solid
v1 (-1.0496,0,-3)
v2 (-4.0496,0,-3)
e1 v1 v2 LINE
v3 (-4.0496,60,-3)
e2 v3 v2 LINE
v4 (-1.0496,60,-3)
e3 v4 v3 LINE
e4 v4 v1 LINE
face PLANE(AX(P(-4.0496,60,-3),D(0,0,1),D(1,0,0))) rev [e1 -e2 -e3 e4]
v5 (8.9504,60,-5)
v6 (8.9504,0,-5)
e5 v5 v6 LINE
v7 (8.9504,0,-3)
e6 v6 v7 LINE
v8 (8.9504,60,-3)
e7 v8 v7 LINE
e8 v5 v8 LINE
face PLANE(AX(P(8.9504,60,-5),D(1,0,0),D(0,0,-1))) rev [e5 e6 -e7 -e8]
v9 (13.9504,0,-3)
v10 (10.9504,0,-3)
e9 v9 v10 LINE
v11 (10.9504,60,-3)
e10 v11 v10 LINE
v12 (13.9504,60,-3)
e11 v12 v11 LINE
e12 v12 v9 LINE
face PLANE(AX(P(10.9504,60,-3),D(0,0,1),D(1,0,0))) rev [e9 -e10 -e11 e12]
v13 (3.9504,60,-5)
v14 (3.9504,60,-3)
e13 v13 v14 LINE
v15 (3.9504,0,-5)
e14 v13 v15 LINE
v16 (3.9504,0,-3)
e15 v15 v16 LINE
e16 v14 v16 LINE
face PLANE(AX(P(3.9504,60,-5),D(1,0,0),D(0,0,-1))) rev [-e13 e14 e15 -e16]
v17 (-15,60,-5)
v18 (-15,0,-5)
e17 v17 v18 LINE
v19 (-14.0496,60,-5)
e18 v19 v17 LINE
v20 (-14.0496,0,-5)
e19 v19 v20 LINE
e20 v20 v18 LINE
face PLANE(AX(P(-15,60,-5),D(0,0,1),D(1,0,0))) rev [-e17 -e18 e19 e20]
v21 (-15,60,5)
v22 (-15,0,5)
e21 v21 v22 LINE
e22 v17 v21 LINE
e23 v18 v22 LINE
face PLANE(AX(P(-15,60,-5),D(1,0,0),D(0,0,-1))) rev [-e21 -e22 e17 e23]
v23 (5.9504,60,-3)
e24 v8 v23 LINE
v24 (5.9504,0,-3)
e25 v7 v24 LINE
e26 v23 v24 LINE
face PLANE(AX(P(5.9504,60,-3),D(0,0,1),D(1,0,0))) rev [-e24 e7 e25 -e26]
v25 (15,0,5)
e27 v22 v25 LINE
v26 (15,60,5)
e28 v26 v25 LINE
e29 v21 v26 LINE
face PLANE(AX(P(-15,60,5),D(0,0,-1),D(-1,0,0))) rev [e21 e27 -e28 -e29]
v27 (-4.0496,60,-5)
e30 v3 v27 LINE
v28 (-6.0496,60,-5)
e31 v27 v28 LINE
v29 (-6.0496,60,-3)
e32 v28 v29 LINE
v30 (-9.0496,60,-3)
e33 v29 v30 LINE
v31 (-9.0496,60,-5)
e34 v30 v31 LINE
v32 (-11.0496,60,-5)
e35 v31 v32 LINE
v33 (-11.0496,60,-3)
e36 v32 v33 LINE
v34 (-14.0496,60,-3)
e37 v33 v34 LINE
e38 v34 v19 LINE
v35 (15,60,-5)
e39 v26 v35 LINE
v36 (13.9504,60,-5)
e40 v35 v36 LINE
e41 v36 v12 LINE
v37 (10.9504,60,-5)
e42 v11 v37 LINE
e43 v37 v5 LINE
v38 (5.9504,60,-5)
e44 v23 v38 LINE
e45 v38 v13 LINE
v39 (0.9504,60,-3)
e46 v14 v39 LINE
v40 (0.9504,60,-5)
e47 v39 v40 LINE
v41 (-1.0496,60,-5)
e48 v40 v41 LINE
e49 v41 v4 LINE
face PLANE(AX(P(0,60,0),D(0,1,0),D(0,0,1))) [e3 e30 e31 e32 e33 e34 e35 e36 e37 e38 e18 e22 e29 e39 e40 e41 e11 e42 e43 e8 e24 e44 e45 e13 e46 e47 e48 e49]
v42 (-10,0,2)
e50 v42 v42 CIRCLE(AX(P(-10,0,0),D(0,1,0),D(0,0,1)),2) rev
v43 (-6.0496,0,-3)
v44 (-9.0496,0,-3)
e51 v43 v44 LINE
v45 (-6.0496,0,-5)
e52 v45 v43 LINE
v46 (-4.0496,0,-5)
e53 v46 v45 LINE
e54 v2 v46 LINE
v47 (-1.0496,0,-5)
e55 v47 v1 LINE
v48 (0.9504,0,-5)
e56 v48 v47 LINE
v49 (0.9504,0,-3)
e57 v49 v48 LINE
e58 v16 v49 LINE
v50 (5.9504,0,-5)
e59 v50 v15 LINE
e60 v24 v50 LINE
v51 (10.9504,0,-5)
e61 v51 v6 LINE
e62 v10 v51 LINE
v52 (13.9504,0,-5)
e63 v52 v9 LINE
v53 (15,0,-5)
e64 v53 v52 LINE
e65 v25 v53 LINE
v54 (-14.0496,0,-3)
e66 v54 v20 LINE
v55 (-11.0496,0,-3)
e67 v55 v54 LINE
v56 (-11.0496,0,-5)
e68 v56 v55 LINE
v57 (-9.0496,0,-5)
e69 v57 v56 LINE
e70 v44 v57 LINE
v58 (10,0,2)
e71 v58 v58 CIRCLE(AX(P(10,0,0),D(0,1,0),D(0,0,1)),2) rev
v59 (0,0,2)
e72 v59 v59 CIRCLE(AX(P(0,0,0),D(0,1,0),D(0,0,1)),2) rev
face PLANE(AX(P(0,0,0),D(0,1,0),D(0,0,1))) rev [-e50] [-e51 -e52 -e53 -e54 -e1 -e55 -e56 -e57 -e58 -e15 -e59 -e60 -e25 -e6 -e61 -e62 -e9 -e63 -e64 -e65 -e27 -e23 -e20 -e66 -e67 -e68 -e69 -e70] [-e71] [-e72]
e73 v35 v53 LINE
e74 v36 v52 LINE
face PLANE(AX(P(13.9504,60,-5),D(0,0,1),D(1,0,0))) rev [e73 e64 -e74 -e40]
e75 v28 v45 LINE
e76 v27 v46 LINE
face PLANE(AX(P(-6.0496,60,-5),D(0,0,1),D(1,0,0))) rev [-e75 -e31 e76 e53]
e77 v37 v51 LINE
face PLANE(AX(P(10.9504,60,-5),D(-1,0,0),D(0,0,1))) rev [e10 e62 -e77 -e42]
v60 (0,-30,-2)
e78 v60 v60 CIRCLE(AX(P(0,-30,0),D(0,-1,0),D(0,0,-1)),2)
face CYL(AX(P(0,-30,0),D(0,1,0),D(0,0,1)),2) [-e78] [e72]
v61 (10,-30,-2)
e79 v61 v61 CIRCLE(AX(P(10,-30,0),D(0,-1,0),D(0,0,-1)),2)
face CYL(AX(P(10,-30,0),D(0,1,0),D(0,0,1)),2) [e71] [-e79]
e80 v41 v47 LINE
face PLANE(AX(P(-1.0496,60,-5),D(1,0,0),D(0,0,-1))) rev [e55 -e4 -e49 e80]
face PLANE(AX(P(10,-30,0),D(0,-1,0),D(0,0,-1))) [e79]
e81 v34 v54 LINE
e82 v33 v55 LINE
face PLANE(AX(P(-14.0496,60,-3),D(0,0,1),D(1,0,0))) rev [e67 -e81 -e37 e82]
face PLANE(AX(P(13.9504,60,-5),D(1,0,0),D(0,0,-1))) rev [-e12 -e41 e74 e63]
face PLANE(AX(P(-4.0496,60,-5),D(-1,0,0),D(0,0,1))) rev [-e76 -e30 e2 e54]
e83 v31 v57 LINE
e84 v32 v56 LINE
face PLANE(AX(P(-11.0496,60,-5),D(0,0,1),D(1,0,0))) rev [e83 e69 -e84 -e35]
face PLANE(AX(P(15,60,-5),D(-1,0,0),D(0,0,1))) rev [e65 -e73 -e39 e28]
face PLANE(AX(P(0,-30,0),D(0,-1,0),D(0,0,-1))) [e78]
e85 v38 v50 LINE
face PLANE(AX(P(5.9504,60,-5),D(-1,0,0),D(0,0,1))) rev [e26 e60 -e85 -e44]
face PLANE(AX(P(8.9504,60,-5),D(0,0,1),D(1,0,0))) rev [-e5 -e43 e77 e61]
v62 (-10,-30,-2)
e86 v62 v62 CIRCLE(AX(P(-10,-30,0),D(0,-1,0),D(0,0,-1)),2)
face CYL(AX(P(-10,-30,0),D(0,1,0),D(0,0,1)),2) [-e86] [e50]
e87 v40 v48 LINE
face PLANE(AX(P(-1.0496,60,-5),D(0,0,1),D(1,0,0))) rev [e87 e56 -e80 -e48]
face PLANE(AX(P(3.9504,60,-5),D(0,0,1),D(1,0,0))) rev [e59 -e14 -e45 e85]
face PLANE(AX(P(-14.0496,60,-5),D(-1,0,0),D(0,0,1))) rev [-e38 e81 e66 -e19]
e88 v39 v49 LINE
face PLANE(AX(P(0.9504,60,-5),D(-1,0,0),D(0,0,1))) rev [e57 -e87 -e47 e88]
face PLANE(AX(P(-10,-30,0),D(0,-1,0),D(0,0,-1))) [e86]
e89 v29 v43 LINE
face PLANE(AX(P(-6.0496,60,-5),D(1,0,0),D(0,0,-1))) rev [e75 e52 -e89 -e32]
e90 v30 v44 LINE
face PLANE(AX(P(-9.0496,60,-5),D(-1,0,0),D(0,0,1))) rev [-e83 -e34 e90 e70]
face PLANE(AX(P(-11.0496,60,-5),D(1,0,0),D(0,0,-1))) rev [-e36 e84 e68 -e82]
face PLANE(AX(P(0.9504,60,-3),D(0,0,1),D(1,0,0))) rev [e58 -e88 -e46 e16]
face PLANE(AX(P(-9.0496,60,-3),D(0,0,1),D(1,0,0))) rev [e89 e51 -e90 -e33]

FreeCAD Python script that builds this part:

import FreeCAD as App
import Part
import Sketcher
Q = App.Units.Quantity

doc = App.newDocument("Part")
body = doc.addObject("PartDesign::Body", "Body")

# Sketch on XZ plane
sketch1 = doc.addObject("Sketcher::SketchObject", "Sketch")
body.addObject(sketch1)
sketch1.AttachmentSupport = (doc.XZ_Plane, [""])
sketch1.MapMode = "FlatFace"
sketch1.addGeometry([
    Part.LineSegment(App.Vector(-14, -5, 0), App.Vector(-15, -5, 0)),  # 0
    Part.LineSegment(App.Vector(-15, -5, 0), App.Vector(-15, 5, 0)),  # 1
    Part.LineSegment(App.Vector(-15, 5, 0), App.Vector(15, 5, 0)),  # 2
    Part.LineSegment(App.Vector(15, 5, 0), App.Vector(15, -5, 0)),  # 3
    Part.LineSegment(App.Vector(15, -5, 0), App.Vector(14, -5, 0)),  # 4
    Part.LineSegment(App.Vector(14, -5, 0), App.Vector(14, -3, 0)),  # 5
    Part.LineSegment(App.Vector(14, -3, 0), App.Vector(11, -3, 0)),  # 6
    Part.LineSegment(App.Vector(11, -3, 0), App.Vector(11, -5, 0)),  # 7
    Part.LineSegment(App.Vector(11, -5, 0), App.Vector(9, -5, 0)),  # 8
    Part.LineSegment(App.Vector(9, -5, 0), App.Vector(9, -3, 0)),  # 9
    Part.LineSegment(App.Vector(9, -3, 0), App.Vector(6, -3, 0)),  # 10
    Part.LineSegment(App.Vector(6, -3, 0), App.Vector(6, -5, 0)),  # 11
    Part.LineSegment(App.Vector(6, -5, 0), App.Vector(4, -5, 0)),  # 12
    Part.LineSegment(App.Vector(4, -5, 0), App.Vector(4, -3, 0)),  # 13
    Part.LineSegment(App.Vector(4, -3, 0), App.Vector(1, -3, 0)),  # 14
    Part.LineSegment(App.Vector(1, -3, 0), App.Vector(1, -5, 0)),  # 15
    Part.LineSegment(App.Vector(1, -5, 0), App.Vector(-1, -5, 0)),  # 16
    Part.LineSegment(App.Vector(-1, -5, 0), App.Vector(-1, -3, 0)),  # 17
    Part.LineSegment(App.Vector(-1, -3, 0), App.Vector(-4, -3, 0)),  # 18
    Part.LineSegment(App.Vector(-4, -3, 0), App.Vector(-4, -5, 0)),  # 19
    Part.LineSegment(App.Vector(-4, -5, 0), App.Vector(-6, -5, 0)),  # 20
    Part.LineSegment(App.Vector(-6, -5, 0), App.Vector(-6, -3, 0)),  # 21
    Part.LineSegment(App.Vector(-6, -3, 0), App.Vector(-9, -3, 0)),  # 22
    Part.LineSegment(App.Vector(-9, -3, 0), App.Vector(-9, -5, 0)),  # 23
    Part.LineSegment(App.Vector(-9, -5, 0), App.Vector(-11, -5, 0)),  # 24
    Part.LineSegment(App.Vector(-11, -5, 0), App.Vector(-11, -3, 0)),  # 25
    Part.LineSegment(App.Vector(-11, -3, 0), App.Vector(-14, -3, 0)),  # 26
    Part.LineSegment(App.Vector(-14, -3, 0), App.Vector(-14, -5, 0)),  # 27
], False)
sketch1.addConstraint([
    Sketcher.Constraint("Coincident", 0, 2, 1, 1),
    Sketcher.Constraint("Coincident", 1, 2, 2, 1),
    Sketcher.Constraint("Coincident", 2, 2, 3, 1),
    Sketcher.Constraint("Coincident", 3, 2, 4, 1),
    Sketcher.Constraint("Coincident", 4, 2, 5, 1),
    Sketcher.Constraint("Coincident", 5, 2, 6, 1),
    Sketcher.Constraint("Coincident", 6, 2, 7, 1),
    Sketcher.Constraint("Coincident", 7, 2, 8, 1),
    Sketcher.Constraint("Coincident", 8, 2, 9, 1),
    Sketcher.Constraint("Coincident", 9, 2, 10, 1),
    Sketcher.Constraint("Coincident", 10, 2, 11, 1),
    Sketcher.Constraint("Coincident", 11, 2, 12, 1),
    Sketcher.Constraint("Coincident", 12, 2, 13, 1),
    Sketcher.Constraint("Coincident", 13, 2, 14, 1),
    Sketcher.Constraint("Coincident", 14, 2, 15, 1),
    Sketcher.Constraint("Coincident", 15, 2, 16, 1),
    Sketcher.Constraint("Coincident", 16, 2, 17, 1),
    Sketcher.Constraint("Coincident", 17, 2, 18, 1),
    Sketcher.Constraint("Coincident", 18, 2, 19, 1),
    Sketcher.Constraint("Coincident", 19, 2, 20, 1),
    Sketcher.Constraint("Coincident", 20, 2, 21, 1),
    Sketcher.Constraint("Coincident", 21, 2, 22, 1),
    Sketcher.Constraint("Coincident", 22, 2, 23, 1),
    Sketcher.Constraint("Coincident", 23, 2, 24, 1),
    Sketcher.Constraint("Coincident", 24, 2, 25, 1),
    Sketcher.Constraint("Coincident", 25, 2, 26, 1),
    Sketcher.Constraint("Coincident", 26, 2, 27, 1),
    Sketcher.Constraint("Coincident", 27, 2, 0, 1),
    Sketcher.Constraint("Horizontal", 0),
    Sketcher.Constraint("Vertical", 1),
    Sketcher.Constraint("Horizontal", 2),
    Sketcher.Constraint("Vertical", 3),
    Sketcher.Constraint("Horizontal", 4),
    Sketcher.Constraint("Vertical", 5),
    Sketcher.Constraint("Horizontal", 6),
    Sketcher.Constraint("Vertical", 7),
    Sketcher.Constraint("Horizontal", 8),
    Sketcher.Constraint("Vertical", 9),
    Sketcher.Constraint("Horizontal", 10),
    Sketcher.Constraint("Vertical", 11),
    Sketcher.Constraint("Horizontal", 12),
    Sketcher.Constraint("Vertical", 13),
    Sketcher.Constraint("Horizontal", 14),
    Sketcher.Constraint("Vertical", 15),
    Sketcher.Constraint("Horizontal", 16),
    Sketcher.Constraint("Vertical", 17),
    Sketcher.Constraint("Horizontal", 18),
    Sketcher.Constraint("Vertical", 19),
    Sketcher.Constraint("Horizontal", 20),
    Sketcher.Constraint("Vertical", 21),
    Sketcher.Constraint("Horizontal", 22),
    Sketcher.Constraint("Vertical", 23),
    Sketcher.Constraint("Horizontal", 24),
    Sketcher.Constraint("Vertical", 25),
    Sketcher.Constraint("Horizontal", 26),
    Sketcher.Constraint("Vertical", 27),
    Sketcher.Constraint("Symmetric", 0, 2, 2, 2, -1, 1),
    Sketcher.Constraint("Horizontal", 0, 2, 3, 2),
    Sketcher.Constraint("Horizontal", 4, 2, 7, 2),
    Sketcher.Constraint("Horizontal", 6, 2, 9, 2),
    Sketcher.Constraint("Horizontal", 8, 2, 11, 2),
    Sketcher.Constraint("Horizontal", 10, 2, 13, 2),
    Sketcher.Constraint("Horizontal", 12, 2, 15, 2),
    Sketcher.Constraint("Horizontal", 14, 2, 17, 2),
    Sketcher.Constraint("Horizontal", 16, 2, 19, 2),
    Sketcher.Constraint("Horizontal", 18, 2, 21, 2),
    Sketcher.Constraint("Horizontal", 20, 2, 23, 2),
    Sketcher.Constraint("Horizontal", 22, 2, 25, 2),
    Sketcher.Constraint("Equal", 6, 10),
    Sketcher.Constraint("Equal", 8, 12),
    Sketcher.Constraint("Equal", 10, 14),
    Sketcher.Constraint("Equal", 12, 16),
    Sketcher.Constraint("Equal", 14, 18),
    Sketcher.Constraint("Equal", 16, 20),
    Sketcher.Constraint("Equal", 18, 22),
    Sketcher.Constraint("Equal", 20, 24),
    Sketcher.Constraint("Equal", 22, 26),
    Sketcher.Constraint("Equal", 24, 5),
    Sketcher.Constraint("DistanceX", 2, 1, 2, 2, Q("30 mm")),
    Sketcher.Constraint("DistanceX", 6, 2, 6, 1, Q("3 mm")),
    Sketcher.Constraint("DistanceX", 8, 2, 8, 1, Q("2 mm")),
    Sketcher.Constraint("DistanceY", 1, 1, 1, 2, Q("10 mm")),
    Sketcher.Constraint("DistanceX", 0, 2, 0, 1, Q("0.9504 mm")),
])
pad1 = doc.addObject("PartDesign::Pad", "Pad")
body.addObject(pad1)
pad1.Profile = sketch1
pad1.Length = 60
pad1.Reversed = True

# Sketch on XZ plane
sketch2 = doc.addObject("Sketcher::SketchObject", "Sketch001")
body.addObject(sketch2)
sketch2.AttachmentSupport = (doc.XZ_Plane, [""])
sketch2.MapMode = "FlatFace"
sketch2.addGeometry([
    Part.Circle(App.Vector(0, 0, 0), App.Vector(0, 0, 1), 2),
    Part.Circle(App.Vector(10, 0, 0), App.Vector(0, 0, 1), 2),
    Part.Circle(App.Vector(-10, 0, 0), App.Vector(0, 0, 1), 2),
], False)
sketch2.addConstraint([
    Sketcher.Constraint("Coincident", 0, 3, -1, 1),
    Sketcher.Constraint("Equal", 0, 1),
    Sketcher.Constraint("Equal", 1, 2),
    Sketcher.Constraint("Symmetric", 1, 3, 2, 3, -1, 1),
    Sketcher.Constraint("PointOnObject", 1, 3, -1),
    Sketcher.Constraint("Diameter", 0, Q("4 mm")),
    Sketcher.Constraint("DistanceX", -1, 1, 1, 3, Q("10 mm")),
])
pad2 = doc.addObject("PartDesign::Pad", "Pad001")
body.addObject(pad2)
pad2.Profile = sketch2
pad2.Length = 30

doc.recompute()
